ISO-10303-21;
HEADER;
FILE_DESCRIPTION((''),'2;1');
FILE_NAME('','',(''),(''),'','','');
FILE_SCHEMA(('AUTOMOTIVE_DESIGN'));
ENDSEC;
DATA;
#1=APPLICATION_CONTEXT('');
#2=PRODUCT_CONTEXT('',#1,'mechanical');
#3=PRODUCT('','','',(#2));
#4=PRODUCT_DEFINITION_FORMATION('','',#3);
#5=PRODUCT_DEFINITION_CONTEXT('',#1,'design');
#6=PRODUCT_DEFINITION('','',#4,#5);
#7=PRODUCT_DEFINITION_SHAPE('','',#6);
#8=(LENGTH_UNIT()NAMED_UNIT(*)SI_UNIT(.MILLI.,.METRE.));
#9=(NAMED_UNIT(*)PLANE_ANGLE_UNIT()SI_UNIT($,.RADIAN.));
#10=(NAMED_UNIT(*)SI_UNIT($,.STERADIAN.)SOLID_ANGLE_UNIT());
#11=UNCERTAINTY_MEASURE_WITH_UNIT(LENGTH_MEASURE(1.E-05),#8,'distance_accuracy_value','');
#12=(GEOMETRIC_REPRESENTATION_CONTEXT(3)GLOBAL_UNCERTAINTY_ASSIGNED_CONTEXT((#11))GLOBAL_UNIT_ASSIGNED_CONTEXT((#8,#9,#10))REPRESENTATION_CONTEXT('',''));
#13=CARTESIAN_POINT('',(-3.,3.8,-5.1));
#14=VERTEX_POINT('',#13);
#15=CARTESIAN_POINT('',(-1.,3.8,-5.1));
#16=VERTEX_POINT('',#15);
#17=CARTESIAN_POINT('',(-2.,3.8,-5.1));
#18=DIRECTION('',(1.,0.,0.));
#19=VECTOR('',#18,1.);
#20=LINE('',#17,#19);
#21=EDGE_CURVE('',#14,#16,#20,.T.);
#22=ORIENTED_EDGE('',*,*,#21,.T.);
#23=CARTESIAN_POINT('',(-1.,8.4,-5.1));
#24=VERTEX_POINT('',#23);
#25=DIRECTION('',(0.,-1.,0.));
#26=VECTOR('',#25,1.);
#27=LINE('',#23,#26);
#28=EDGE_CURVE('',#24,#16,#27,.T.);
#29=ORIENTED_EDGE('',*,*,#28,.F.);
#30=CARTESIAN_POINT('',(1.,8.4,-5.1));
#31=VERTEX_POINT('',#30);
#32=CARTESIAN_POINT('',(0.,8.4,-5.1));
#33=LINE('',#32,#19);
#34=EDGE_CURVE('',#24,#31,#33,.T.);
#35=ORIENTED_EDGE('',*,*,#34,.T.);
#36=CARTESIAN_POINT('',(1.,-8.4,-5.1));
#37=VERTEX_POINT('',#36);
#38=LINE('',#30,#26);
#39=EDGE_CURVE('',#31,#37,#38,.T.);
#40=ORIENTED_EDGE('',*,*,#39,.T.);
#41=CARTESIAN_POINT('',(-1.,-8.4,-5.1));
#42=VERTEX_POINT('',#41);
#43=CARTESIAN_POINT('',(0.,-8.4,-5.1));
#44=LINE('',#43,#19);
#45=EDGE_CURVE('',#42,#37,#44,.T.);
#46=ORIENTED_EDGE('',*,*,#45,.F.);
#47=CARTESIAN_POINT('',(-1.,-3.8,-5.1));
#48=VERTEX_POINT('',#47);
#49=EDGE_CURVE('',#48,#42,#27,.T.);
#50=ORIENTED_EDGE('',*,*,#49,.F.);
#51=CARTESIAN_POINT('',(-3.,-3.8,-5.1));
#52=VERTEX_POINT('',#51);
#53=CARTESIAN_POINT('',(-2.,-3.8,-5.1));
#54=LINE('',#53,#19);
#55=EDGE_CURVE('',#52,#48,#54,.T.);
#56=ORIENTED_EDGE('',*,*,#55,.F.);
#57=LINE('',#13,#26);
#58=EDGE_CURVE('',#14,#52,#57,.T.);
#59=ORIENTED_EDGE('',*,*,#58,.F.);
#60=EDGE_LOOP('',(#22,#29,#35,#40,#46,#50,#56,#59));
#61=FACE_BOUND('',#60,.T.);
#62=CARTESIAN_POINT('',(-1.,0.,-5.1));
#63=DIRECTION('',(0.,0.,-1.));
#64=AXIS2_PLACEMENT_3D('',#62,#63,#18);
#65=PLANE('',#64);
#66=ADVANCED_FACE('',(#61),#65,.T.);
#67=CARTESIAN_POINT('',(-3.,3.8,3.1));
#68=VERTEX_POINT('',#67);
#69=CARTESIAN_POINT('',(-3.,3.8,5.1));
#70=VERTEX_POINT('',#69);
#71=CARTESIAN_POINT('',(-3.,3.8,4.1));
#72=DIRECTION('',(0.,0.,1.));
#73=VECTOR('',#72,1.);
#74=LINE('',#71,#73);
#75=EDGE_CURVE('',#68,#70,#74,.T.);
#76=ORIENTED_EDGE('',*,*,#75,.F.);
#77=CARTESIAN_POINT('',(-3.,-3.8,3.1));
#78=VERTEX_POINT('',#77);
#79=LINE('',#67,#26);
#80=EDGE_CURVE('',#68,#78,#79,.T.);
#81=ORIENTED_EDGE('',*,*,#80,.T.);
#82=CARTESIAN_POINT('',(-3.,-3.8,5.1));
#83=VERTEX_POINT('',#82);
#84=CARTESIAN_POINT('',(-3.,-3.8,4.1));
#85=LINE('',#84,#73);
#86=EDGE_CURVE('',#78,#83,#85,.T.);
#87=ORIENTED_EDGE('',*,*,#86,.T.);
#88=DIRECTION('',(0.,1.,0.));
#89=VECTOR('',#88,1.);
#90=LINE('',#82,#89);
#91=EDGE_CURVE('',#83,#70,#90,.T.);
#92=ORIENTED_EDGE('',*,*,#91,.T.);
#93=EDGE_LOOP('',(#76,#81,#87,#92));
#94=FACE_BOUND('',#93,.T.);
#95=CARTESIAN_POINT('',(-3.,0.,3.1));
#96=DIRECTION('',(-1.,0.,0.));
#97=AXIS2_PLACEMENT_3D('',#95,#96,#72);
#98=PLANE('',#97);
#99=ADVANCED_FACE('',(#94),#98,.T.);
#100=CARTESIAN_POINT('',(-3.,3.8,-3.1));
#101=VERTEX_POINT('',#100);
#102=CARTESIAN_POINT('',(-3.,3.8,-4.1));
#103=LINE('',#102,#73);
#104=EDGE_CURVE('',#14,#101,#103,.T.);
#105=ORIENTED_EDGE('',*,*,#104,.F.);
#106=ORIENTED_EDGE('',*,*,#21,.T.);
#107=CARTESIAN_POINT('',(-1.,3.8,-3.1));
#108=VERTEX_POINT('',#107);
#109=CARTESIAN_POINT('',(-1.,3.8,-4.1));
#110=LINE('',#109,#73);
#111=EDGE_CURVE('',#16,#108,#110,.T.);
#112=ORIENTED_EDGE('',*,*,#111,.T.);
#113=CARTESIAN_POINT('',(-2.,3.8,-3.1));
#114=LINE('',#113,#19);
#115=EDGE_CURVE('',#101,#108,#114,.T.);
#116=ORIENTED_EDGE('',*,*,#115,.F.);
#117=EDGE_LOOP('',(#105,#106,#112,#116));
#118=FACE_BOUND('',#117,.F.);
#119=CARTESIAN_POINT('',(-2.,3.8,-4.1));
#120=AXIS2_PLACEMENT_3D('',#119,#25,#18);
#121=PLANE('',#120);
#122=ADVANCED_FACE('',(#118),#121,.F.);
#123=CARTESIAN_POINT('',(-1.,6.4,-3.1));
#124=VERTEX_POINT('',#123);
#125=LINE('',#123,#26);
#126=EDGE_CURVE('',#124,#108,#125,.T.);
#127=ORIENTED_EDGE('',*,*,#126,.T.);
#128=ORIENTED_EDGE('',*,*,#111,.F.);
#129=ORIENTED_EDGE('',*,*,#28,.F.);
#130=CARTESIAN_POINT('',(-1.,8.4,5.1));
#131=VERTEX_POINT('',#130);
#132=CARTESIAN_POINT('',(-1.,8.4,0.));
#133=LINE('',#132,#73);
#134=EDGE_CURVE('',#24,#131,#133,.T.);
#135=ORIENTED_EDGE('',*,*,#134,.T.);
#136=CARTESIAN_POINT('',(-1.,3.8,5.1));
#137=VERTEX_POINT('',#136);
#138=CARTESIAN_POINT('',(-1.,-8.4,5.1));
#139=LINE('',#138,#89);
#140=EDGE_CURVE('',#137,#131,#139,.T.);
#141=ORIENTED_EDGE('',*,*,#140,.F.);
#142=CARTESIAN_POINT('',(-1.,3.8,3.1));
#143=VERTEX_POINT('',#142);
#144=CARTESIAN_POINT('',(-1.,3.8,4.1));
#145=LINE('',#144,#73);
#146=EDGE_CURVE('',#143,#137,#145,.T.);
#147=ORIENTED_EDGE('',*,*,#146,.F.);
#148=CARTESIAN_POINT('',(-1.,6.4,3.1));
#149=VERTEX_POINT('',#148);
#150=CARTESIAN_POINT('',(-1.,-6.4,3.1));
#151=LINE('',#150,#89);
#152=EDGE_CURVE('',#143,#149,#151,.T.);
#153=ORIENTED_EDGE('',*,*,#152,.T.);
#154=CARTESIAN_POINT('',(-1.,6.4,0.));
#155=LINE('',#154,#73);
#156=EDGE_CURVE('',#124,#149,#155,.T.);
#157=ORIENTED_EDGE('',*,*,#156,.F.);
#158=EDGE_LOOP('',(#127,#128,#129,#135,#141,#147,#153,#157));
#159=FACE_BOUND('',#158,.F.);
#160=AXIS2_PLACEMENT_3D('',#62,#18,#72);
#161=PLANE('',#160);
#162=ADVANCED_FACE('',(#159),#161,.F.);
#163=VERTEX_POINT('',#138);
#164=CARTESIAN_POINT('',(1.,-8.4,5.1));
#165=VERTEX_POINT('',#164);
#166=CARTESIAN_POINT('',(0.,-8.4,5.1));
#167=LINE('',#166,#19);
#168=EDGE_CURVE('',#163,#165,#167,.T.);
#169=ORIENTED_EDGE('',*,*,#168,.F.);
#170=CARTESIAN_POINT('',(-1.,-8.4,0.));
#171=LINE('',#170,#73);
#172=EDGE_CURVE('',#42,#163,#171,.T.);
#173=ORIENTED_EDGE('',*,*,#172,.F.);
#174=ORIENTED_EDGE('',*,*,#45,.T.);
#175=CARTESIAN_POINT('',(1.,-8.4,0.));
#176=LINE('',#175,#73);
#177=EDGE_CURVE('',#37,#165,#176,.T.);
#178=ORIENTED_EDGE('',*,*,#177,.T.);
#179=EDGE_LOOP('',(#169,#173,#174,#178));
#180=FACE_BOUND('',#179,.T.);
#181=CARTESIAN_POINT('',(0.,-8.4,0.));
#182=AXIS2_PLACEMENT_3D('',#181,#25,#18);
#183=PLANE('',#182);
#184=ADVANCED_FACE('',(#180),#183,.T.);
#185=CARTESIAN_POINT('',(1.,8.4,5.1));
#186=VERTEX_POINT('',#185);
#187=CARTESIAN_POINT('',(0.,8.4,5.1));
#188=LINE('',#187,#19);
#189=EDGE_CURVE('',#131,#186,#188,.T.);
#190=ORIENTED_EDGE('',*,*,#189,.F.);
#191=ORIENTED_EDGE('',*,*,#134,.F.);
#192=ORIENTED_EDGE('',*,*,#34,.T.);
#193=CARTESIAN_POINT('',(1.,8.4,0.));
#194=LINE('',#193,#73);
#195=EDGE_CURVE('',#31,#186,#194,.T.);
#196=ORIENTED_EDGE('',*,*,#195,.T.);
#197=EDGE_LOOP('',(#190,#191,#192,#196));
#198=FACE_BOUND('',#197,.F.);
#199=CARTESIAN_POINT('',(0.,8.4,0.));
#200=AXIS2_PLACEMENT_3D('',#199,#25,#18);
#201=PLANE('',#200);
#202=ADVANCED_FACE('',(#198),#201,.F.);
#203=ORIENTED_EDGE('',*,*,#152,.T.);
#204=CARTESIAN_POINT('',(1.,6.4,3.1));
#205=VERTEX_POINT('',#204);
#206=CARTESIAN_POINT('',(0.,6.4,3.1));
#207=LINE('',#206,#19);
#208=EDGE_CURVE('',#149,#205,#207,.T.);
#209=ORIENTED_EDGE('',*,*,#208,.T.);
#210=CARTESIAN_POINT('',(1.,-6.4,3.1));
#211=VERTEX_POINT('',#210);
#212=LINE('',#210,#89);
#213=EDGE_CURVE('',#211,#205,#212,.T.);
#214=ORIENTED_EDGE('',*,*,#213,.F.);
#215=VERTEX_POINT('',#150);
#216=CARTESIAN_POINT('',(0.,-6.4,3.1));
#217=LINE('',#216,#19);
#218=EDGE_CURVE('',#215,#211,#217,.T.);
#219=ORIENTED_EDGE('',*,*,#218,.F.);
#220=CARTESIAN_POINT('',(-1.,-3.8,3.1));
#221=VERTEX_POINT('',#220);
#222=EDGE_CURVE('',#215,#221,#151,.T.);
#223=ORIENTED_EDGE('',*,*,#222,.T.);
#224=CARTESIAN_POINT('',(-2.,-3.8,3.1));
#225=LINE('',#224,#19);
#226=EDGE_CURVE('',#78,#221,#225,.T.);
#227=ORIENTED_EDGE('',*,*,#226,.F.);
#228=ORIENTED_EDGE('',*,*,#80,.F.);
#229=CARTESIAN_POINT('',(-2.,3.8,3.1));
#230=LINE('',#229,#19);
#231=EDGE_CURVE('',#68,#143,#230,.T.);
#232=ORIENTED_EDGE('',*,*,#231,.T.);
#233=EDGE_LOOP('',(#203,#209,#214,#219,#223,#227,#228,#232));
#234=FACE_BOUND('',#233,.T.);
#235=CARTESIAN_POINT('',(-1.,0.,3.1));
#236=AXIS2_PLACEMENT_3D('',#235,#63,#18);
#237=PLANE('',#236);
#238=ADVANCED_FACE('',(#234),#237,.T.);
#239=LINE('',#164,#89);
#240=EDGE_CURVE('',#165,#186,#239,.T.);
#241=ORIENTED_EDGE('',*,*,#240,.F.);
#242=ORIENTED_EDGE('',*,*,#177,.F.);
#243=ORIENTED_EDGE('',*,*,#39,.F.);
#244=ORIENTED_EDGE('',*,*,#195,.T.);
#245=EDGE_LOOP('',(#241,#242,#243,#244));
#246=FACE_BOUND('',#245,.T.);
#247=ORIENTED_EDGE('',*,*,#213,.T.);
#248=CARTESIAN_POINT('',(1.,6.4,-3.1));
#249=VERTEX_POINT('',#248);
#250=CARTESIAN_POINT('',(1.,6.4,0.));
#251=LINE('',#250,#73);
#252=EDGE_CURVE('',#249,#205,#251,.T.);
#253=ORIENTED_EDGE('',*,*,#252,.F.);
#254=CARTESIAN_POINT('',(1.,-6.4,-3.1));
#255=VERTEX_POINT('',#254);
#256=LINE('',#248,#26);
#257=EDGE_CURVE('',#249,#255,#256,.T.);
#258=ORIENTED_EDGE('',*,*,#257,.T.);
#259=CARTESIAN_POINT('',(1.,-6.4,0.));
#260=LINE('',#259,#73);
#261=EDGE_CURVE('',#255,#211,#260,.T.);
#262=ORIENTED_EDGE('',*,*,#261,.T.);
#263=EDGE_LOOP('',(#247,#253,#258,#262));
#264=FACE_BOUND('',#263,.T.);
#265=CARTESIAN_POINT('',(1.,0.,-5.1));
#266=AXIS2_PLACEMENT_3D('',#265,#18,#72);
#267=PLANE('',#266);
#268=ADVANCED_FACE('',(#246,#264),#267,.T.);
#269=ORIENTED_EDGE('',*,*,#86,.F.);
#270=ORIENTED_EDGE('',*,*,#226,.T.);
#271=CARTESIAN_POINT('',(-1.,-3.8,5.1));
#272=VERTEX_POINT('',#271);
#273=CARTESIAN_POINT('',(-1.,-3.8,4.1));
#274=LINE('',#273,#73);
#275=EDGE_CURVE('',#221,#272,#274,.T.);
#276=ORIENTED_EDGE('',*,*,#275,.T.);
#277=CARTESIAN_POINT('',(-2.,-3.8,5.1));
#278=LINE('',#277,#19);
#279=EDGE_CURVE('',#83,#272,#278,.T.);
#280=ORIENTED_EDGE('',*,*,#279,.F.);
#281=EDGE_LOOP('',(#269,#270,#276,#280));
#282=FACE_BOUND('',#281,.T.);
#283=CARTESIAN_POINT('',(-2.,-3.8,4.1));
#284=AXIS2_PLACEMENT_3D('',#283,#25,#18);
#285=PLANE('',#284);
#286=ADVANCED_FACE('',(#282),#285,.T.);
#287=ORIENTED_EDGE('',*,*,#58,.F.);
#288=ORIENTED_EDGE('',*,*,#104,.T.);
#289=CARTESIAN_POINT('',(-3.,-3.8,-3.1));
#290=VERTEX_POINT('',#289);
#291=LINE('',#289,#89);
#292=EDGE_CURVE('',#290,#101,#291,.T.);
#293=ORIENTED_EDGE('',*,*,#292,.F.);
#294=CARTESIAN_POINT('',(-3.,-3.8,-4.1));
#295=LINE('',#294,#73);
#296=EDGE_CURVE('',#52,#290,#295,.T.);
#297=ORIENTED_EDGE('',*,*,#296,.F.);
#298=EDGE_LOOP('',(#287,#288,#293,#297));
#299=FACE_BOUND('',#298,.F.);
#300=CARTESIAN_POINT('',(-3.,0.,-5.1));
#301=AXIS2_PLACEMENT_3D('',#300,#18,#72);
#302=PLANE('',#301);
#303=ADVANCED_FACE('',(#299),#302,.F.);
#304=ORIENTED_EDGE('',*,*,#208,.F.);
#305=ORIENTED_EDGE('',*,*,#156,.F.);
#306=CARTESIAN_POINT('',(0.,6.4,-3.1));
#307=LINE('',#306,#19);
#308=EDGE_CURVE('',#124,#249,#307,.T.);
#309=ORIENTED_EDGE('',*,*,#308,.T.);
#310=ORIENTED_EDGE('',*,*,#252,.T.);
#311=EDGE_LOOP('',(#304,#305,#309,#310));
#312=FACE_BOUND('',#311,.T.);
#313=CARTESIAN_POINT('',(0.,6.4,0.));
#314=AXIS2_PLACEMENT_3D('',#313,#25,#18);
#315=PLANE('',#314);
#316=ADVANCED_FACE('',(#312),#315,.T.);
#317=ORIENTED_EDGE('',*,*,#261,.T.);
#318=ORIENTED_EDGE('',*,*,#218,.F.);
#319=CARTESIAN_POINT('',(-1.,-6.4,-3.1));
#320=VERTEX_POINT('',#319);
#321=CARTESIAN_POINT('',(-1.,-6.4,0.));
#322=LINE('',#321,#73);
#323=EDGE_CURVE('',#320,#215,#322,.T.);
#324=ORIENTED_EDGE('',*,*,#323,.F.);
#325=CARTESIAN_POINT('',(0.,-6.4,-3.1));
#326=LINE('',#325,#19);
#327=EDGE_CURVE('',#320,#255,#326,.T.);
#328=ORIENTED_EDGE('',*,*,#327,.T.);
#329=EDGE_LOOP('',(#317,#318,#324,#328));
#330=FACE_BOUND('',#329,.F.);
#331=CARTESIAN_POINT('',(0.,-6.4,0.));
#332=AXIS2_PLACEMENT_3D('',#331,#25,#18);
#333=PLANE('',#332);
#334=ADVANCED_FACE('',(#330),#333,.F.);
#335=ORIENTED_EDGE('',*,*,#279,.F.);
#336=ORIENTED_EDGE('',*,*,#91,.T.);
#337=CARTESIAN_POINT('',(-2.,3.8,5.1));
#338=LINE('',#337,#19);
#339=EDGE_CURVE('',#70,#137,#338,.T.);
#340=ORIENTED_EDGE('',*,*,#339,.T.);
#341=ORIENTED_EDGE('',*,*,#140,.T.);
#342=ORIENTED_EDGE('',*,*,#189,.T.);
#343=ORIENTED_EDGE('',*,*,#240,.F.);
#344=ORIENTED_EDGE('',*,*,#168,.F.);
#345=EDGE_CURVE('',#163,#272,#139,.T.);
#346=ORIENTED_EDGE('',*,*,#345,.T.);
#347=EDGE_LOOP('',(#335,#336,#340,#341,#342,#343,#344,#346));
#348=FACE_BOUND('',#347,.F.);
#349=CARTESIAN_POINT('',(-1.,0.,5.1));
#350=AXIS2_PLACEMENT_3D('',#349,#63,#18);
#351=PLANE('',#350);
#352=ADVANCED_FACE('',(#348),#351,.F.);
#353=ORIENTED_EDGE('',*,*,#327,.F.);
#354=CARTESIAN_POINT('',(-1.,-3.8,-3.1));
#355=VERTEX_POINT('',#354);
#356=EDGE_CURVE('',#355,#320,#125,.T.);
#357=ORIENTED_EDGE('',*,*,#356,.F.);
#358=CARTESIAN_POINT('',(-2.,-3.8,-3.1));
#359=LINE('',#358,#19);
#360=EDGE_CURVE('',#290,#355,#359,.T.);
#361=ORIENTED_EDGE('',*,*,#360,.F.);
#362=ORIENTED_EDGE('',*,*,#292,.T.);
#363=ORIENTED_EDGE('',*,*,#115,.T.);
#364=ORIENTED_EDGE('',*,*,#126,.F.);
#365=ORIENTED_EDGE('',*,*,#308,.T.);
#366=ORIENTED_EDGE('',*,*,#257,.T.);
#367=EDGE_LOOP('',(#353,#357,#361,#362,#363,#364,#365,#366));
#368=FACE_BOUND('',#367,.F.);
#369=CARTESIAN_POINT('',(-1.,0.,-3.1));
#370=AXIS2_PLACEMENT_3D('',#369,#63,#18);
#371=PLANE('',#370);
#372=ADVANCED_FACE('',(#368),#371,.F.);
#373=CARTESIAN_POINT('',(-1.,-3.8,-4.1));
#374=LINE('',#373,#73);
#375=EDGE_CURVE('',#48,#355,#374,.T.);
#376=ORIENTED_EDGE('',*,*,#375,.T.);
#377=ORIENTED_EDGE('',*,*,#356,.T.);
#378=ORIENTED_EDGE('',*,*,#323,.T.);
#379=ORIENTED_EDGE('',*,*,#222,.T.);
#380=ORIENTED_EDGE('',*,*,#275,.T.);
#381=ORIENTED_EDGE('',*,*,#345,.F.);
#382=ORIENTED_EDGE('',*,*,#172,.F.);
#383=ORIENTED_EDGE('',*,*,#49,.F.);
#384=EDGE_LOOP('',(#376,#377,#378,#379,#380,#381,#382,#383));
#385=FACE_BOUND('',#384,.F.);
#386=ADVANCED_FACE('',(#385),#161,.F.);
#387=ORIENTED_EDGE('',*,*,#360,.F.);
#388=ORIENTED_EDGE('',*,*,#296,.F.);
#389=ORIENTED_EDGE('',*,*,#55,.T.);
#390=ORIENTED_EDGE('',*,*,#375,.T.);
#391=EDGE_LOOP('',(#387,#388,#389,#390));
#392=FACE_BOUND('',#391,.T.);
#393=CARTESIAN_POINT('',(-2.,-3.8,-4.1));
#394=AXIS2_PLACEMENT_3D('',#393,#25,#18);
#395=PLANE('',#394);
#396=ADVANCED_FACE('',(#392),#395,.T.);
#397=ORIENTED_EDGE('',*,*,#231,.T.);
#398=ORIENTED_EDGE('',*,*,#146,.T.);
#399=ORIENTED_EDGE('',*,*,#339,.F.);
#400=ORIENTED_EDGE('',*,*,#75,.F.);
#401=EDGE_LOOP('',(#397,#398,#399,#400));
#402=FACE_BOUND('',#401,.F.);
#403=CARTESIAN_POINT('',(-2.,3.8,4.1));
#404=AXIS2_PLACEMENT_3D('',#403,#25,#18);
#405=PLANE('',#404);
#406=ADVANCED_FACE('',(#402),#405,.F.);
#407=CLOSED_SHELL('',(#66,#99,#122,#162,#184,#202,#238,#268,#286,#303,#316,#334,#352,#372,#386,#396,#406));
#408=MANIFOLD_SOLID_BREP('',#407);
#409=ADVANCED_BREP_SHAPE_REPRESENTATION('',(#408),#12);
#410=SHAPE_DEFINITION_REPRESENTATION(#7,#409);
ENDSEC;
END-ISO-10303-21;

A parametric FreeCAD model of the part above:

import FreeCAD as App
import Part
import Sketcher
from FreeCAD import Vector
Q = App.Units.Quantity


def add_polygon(sketch, points):
    """Adds a closed chain of lines whose ends are joined by coincident constraints."""
    first, n = sketch.GeometryCount, len(points)
    for a, b in zip(points, points[1:] + points[:1]):
        sketch.addGeometry(Part.LineSegment(App.Vector(*a, 0), App.Vector(*b, 0)), False)
    for i in range(n):
        sketch.addConstraint(Sketcher.Constraint("Coincident", first + i, 2, first + (i + 1) % n, 1))

doc = App.newDocument("Part")
body = doc.addObject("PartDesign::Body", "Body")

# Sketch on XZ plane
sketch1 = body.newObject("Sketcher::SketchObject", "Sketch")
sketch1.AttachmentSupport = (doc.getObject("XZ_Plane"), [""])
sketch1.MapMode = "FlatFace"
add_polygon(sketch1, [(-1, 5.1), (-1, -5.1), (1, -5.1), (1, 5.1)])  # lines 0-3
sketch1.addConstraint(Sketcher.Constraint("Vertical", 0))
sketch1.addConstraint(Sketcher.Constraint("Horizontal", 1))
sketch1.addConstraint(Sketcher.Constraint("Vertical", 2))
sketch1.addConstraint(Sketcher.Constraint("Horizontal", 3))
sketch1.addConstraint(Sketcher.Constraint("Symmetric", 0, 2, 2, 2, -1, 1))
sketch1.addConstraint(Sketcher.Constraint("DistanceX", 1, 1, 1, 2, Q("2 mm")))
sketch1.addConstraint(Sketcher.Constraint("DistanceY", 0, 2, 0, 1, Q("10.2 mm")))
pad1 = body.newObject("PartDesign::Pad", "Pad")
pad1.Profile = sketch1
pad1.Length = 16.8
pad1.Midplane = True

# Sketch on XZ plane
sketch2 = body.newObject("Sketcher::SketchObject", "Sketch001")
sketch2.AttachmentSupport = (doc.getObject("XZ_Plane"), [""])
sketch2.MapMode = "FlatFace"
add_polygon(sketch2, [(-1, 3.1), (-1, -3.1), (1, -3.1), (1, 3.1)])  # lines 0-3
sketch2.addConstraint(Sketcher.Constraint("Vertical", 0))
sketch2.addConstraint(Sketcher.Constraint("Horizontal", 1))
sketch2.addConstraint(Sketcher.Constraint("Vertical", 2))
sketch2.addConstraint(Sketcher.Constraint("Horizontal", 3))
sketch2.addConstraint(Sketcher.Constraint("Symmetric", 0, 2, 2, 2, -1, 1))
sketch2.addConstraint(Sketcher.Constraint("DistanceX", 1, 1, 1, 2, Q("2 mm")))
sketch2.addConstraint(Sketcher.Constraint("DistanceY", 0, 2, 0, 1, Q("6.2 mm")))
pocket1 = body.newObject("PartDesign::Pocket", "Pocket")
pocket1.Profile = sketch2
pocket1.Length = 12.8
pocket1.Midplane = True

# Sketch on XZ plane
sketch3 = body.newObject("Sketcher::SketchObject", "Sketch002")
sketch3.AttachmentSupport = (doc.getObject("XZ_Plane"), [""])
sketch3.MapMode = "FlatFace"
add_polygon(sketch3, [(-3, 5.1), (-3, 3.1), (-1, 3.1), (-1, 5.1)])  # lines 0-3
add_polygon(sketch3, [(-3, -3.1), (-3, -5.1), (-1, -5.1), (-1, -3.1)])  # lines 4-7
sketch3.addConstraint(Sketcher.Constraint("Vertical", 0))
sketch3.addConstraint(Sketcher.Constraint("Horizontal", 1))
sketch3.addConstraint(Sketcher.Constraint("Vertical", 2))
sketch3.addConstraint(Sketcher.Constraint("Horizontal", 3))
sketch3.addConstraint(Sketcher.Constraint("Vertical", 4))
sketch3.addConstraint(Sketcher.Constraint("Horizontal", 5))
sketch3.addConstraint(Sketcher.Constraint("Vertical", 6))
sketch3.addConstraint(Sketcher.Constraint("Horizontal", 7))
sketch3.addConstraint(Sketcher.Constraint("Symmetric", 3, 2, 4, 2, -1))
sketch3.addConstraint(Sketcher.Constraint("Symmetric", 1, 2, 6, 2, -1))
sketch3.addConstraint(Sketcher.Constraint("Equal", 7, 0))
sketch3.addConstraint(Sketcher.Constraint("DistanceX", 1, 1, 1, 2, Q("2 mm")))
sketch3.addConstraint(Sketcher.Constraint("DistanceX", 0, 2, -1, 1, Q("3 mm")))
sketch3.addConstraint(Sketcher.Constraint("DistanceY", -1, 1, 0, 2, Q("3.1 mm")))
pad2 = body.newObject("PartDesign::Pad", "Pad001")
pad2.Profile = sketch3
pad2.Length = 7.6
pad2.Midplane = True

doc.recompute()
